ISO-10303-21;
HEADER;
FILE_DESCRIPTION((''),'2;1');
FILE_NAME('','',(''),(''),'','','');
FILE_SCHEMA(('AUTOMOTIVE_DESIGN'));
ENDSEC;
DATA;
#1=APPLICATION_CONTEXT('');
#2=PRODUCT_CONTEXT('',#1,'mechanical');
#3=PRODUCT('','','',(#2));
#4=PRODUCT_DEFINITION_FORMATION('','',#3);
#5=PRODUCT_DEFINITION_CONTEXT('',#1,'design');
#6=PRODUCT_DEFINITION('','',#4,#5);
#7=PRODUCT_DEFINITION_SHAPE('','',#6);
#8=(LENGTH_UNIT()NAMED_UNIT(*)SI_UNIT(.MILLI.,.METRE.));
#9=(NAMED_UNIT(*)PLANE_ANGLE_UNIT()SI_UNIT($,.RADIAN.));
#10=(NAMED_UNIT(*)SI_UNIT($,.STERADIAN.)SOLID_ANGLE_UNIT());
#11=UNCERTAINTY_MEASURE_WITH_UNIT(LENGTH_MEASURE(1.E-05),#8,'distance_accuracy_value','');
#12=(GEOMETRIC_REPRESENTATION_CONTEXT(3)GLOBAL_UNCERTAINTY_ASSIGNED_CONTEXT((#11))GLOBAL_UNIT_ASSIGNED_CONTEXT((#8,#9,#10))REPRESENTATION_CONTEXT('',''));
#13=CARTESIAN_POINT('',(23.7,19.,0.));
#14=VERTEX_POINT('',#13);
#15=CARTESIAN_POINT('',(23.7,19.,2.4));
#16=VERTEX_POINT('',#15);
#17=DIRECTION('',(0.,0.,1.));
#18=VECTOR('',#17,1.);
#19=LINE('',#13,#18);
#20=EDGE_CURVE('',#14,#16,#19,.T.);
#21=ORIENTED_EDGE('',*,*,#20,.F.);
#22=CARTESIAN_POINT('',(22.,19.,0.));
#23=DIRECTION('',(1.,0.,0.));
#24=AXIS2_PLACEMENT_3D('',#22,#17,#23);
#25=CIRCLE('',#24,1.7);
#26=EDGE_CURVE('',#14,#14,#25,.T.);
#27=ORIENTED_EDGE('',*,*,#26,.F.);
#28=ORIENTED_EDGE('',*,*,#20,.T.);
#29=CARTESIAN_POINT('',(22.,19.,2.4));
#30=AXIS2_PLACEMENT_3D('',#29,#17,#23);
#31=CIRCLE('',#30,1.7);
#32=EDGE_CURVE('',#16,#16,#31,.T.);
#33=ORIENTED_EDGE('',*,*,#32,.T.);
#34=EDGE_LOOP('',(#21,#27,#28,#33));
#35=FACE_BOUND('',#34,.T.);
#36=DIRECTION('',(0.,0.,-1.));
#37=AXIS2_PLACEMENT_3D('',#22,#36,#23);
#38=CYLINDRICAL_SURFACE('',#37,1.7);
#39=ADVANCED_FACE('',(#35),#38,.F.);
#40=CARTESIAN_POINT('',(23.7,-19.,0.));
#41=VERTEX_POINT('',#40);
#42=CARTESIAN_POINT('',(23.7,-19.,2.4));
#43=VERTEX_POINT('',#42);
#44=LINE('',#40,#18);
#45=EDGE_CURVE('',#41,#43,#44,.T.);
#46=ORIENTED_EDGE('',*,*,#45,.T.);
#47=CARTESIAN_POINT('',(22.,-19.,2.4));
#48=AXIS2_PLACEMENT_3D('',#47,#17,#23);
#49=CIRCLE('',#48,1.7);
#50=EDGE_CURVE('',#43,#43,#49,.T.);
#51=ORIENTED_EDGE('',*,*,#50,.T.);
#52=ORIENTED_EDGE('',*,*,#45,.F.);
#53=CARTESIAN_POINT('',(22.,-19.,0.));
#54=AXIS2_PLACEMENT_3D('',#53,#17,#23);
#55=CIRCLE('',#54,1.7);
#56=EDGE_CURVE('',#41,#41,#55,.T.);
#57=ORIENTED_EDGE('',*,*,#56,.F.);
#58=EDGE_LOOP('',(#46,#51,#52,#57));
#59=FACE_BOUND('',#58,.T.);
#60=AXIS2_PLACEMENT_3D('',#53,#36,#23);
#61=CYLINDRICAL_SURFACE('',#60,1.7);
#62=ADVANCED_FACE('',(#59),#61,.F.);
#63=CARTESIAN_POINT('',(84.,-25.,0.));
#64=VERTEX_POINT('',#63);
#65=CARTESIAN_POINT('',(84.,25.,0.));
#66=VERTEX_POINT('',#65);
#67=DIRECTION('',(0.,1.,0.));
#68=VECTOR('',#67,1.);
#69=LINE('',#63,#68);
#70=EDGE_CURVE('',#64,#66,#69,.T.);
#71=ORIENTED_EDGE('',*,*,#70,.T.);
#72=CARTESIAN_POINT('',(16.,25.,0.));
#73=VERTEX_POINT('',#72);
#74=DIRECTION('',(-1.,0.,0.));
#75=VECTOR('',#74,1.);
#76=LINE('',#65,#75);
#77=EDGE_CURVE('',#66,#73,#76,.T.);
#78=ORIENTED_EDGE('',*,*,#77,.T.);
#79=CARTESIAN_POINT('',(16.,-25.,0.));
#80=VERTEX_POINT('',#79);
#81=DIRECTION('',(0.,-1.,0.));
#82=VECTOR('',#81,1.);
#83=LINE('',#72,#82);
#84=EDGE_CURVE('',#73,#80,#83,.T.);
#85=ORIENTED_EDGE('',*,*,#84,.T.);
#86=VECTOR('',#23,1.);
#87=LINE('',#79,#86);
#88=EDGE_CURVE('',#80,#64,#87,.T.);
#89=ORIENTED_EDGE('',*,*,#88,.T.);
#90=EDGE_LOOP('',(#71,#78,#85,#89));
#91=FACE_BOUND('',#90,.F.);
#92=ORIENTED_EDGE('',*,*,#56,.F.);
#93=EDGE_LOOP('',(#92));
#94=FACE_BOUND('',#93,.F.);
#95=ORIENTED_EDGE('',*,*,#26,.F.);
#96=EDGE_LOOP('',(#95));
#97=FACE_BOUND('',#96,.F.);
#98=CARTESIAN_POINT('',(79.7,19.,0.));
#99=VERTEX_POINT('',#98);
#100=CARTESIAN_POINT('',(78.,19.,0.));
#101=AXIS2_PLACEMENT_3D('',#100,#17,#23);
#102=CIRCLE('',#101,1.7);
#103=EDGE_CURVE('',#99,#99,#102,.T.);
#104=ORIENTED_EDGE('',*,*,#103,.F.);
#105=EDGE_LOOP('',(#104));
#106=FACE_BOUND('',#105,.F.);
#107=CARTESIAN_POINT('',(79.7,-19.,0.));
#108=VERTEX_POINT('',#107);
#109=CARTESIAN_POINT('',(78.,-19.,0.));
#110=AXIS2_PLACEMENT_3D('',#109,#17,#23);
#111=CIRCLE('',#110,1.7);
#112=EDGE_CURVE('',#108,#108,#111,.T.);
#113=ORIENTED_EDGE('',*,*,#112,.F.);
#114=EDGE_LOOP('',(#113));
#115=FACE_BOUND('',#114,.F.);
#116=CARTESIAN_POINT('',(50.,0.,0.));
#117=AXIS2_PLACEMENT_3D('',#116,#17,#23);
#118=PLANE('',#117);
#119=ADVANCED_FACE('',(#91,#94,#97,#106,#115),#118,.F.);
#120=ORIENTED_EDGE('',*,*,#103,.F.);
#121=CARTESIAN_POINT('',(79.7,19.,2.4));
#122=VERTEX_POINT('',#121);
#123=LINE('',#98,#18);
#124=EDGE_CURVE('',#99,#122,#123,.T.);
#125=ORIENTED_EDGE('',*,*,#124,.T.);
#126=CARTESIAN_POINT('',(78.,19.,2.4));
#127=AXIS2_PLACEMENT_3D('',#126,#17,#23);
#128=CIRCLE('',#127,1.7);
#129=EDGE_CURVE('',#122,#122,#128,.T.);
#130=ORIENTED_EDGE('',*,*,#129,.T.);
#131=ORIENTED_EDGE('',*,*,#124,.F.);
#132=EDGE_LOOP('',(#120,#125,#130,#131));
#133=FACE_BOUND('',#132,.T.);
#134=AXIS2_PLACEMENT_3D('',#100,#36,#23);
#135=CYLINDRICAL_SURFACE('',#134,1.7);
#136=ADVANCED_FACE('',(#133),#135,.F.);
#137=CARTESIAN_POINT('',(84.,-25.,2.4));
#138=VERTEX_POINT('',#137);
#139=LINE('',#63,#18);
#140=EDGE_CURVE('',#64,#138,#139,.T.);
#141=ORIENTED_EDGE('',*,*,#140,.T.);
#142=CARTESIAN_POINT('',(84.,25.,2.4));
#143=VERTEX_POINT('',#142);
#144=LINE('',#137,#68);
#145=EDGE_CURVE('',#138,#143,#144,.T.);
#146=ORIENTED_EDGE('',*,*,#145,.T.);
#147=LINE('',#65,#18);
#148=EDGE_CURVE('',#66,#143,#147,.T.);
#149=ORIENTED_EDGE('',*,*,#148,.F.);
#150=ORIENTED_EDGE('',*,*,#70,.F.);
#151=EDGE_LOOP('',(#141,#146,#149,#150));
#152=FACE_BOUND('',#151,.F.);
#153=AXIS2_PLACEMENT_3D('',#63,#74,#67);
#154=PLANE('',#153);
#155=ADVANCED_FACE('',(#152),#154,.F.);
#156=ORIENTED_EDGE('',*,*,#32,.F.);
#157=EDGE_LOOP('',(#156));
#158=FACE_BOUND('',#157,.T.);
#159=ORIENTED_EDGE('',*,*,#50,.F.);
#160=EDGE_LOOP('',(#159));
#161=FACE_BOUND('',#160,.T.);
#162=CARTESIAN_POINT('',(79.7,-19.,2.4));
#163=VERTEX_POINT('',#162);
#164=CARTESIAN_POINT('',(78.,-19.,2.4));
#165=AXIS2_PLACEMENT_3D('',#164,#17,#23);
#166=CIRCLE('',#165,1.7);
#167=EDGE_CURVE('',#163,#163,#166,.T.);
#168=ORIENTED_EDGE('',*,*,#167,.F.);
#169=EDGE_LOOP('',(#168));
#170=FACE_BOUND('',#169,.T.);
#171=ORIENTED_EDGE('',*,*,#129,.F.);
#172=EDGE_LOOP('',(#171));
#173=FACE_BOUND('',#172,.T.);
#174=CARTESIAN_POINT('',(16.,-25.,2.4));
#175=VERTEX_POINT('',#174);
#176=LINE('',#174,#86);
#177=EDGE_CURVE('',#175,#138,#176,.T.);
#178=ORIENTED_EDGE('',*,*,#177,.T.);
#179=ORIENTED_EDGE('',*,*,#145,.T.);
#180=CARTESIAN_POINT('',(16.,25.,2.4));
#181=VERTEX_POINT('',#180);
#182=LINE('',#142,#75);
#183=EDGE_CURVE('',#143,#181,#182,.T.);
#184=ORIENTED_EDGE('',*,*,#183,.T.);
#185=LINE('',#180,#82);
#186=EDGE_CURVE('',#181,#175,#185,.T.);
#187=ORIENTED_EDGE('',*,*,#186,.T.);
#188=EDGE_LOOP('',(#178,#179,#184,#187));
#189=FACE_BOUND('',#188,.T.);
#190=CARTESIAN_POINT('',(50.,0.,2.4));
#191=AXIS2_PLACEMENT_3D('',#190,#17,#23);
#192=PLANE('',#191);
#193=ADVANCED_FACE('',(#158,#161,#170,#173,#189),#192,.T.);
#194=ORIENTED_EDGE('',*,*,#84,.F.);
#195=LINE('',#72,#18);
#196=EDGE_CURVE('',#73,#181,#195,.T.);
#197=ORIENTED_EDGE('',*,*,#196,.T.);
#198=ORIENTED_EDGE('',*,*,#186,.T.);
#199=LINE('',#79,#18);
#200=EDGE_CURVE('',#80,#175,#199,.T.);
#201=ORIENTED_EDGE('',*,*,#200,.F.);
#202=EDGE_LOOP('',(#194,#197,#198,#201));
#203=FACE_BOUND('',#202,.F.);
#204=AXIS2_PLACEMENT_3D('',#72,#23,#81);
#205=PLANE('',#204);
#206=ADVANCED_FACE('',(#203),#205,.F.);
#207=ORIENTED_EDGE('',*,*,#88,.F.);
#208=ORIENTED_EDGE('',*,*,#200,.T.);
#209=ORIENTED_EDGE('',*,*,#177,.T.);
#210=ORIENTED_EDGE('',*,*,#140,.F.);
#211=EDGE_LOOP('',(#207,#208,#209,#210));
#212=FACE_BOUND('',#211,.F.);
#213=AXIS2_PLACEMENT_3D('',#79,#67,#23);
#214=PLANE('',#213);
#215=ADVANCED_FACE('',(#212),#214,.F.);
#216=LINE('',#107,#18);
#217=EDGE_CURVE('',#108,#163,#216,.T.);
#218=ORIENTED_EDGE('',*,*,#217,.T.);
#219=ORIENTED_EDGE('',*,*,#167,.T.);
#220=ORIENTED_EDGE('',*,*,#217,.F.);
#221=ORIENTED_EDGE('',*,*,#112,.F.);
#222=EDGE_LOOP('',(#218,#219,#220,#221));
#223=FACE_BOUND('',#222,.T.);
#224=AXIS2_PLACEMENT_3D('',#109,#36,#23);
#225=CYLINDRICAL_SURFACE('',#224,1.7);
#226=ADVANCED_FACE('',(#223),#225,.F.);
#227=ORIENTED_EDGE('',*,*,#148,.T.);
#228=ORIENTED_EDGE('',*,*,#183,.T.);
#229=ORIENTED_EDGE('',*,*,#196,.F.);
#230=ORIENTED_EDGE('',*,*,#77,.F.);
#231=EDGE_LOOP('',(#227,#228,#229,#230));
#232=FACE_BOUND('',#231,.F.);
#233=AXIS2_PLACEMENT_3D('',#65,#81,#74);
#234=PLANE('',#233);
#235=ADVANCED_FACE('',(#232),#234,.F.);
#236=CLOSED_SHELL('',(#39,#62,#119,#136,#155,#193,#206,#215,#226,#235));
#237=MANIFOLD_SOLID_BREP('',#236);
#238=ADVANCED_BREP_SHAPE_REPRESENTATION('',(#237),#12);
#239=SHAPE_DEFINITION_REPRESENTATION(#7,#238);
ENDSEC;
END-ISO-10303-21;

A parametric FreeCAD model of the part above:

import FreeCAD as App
import Part
import Sketcher
from FreeCAD import Vector
Q = App.Units.Quantity

doc = App.newDocument("Part")
params = doc.addObject("Spreadsheet::Sheet", "Params")
for row, (alias, value) in enumerate([
    ("sketch1_diameter", "3.4 mm"),
    ("sketch1_width", "68 mm"),
    ("sketch1_height", "50 mm"),
    ("pad1_length", "2.4 mm"),
], start=1):
    params.set(f"A{row}", alias)
    params.set(f"B{row}", "=" + value)
    params.setAlias(f"B{row}", alias)

body = doc.addObject("PartDesign::Body", "Body")

# Sketch on XY plane
sketch1 = doc.addObject("Sketcher::SketchObject", "Sketch")
body.addObject(sketch1)
sketch1.AttachmentSupport = (doc.XY_Plane, [""])
sketch1.MapMode = "FlatFace"
sketch1.addGeometry([
    Part.LineSegment(Vector(16, 25, 0), Vector(16, -25, 0)),  # 0
    Part.LineSegment(Vector(16, -25, 0), Vector(84, -25, 0)),  # 1
    Part.LineSegment(Vector(84, -25, 0), Vector(84, 25, 0)),  # 2
    Part.LineSegment(Vector(84, 25, 0), Vector(16, 25, 0)),  # 3
    Part.Circle(Vector(22, -19, 0), Vector(0, 0, 1), 1.7),  # 4
    Part.Circle(Vector(78, -19, 0), Vector(0, 0, 1), 1.7),  # 5
    Part.Circle(Vector(22, 19, 0), Vector(0, 0, 1), 1.7),  # 6
    Part.Circle(Vector(78, 19, 0), Vector(0, 0, 1), 1.7),  # 7
], False)
sketch1.addConstraint([
    Sketcher.Constraint("Coincident", 0, 2, 1, 1),
    Sketcher.Constraint("Coincident", 1, 2, 2, 1),
    Sketcher.Constraint("Coincident", 2, 2, 3, 1),
    Sketcher.Constraint("Coincident", 3, 2, 0, 1),
    Sketcher.Constraint("Vertical", 0),
    Sketcher.Constraint("Horizontal", 1),
    Sketcher.Constraint("Vertical", 2),
    Sketcher.Constraint("Horizontal", 3),
    Sketcher.Constraint("Equal", 4, 5),
    Sketcher.Constraint("Equal", 5, 6),
    Sketcher.Constraint("Equal", 6, 7),
    Sketcher.Constraint("Symmetric", 4, 3, 6, 3, -1),
    Sketcher.Constraint("Symmetric", 5, 3, 7, 3, -1),
    Sketcher.Constraint("Horizontal", 4, 3, 5, 3),
    Sketcher.Constraint("Diameter", 4, Q("3.4 mm")),
    Sketcher.Constraint("DistanceX", 1, 1, 1, 2, Q("68 mm")),
    Sketcher.Constraint("DistanceY", 0, 2, 0, 1, Q("50 mm")),
    Sketcher.Constraint("DistanceX", -1, 1, 4, 3, Q("22 mm")),
    Sketcher.Constraint("DistanceY", 4, 3, -1, 1, Q("19 mm")),
    Sketcher.Constraint("DistanceX", -1, 1, 5, 3, Q("78 mm")),
    Sketcher.Constraint("DistanceX", -1, 1, 0, 2, Q("16 mm")),
    Sketcher.Constraint("DistanceY", 0, 2, -1, 1, Q("25 mm")),
])
sketch1.setExpression("Constraints[14]", "Params.sketch1_diameter")
sketch1.setExpression("Constraints[15]", "Params.sketch1_width")
sketch1.setExpression("Constraints[16]", "Params.sketch1_height")
pad1 = doc.addObject("PartDesign::Pad", "Pad")
body.addObject(pad1)
pad1.Profile = sketch1
pad1.setExpression("Length", "Params.pad1_length")

doc.recompute()
